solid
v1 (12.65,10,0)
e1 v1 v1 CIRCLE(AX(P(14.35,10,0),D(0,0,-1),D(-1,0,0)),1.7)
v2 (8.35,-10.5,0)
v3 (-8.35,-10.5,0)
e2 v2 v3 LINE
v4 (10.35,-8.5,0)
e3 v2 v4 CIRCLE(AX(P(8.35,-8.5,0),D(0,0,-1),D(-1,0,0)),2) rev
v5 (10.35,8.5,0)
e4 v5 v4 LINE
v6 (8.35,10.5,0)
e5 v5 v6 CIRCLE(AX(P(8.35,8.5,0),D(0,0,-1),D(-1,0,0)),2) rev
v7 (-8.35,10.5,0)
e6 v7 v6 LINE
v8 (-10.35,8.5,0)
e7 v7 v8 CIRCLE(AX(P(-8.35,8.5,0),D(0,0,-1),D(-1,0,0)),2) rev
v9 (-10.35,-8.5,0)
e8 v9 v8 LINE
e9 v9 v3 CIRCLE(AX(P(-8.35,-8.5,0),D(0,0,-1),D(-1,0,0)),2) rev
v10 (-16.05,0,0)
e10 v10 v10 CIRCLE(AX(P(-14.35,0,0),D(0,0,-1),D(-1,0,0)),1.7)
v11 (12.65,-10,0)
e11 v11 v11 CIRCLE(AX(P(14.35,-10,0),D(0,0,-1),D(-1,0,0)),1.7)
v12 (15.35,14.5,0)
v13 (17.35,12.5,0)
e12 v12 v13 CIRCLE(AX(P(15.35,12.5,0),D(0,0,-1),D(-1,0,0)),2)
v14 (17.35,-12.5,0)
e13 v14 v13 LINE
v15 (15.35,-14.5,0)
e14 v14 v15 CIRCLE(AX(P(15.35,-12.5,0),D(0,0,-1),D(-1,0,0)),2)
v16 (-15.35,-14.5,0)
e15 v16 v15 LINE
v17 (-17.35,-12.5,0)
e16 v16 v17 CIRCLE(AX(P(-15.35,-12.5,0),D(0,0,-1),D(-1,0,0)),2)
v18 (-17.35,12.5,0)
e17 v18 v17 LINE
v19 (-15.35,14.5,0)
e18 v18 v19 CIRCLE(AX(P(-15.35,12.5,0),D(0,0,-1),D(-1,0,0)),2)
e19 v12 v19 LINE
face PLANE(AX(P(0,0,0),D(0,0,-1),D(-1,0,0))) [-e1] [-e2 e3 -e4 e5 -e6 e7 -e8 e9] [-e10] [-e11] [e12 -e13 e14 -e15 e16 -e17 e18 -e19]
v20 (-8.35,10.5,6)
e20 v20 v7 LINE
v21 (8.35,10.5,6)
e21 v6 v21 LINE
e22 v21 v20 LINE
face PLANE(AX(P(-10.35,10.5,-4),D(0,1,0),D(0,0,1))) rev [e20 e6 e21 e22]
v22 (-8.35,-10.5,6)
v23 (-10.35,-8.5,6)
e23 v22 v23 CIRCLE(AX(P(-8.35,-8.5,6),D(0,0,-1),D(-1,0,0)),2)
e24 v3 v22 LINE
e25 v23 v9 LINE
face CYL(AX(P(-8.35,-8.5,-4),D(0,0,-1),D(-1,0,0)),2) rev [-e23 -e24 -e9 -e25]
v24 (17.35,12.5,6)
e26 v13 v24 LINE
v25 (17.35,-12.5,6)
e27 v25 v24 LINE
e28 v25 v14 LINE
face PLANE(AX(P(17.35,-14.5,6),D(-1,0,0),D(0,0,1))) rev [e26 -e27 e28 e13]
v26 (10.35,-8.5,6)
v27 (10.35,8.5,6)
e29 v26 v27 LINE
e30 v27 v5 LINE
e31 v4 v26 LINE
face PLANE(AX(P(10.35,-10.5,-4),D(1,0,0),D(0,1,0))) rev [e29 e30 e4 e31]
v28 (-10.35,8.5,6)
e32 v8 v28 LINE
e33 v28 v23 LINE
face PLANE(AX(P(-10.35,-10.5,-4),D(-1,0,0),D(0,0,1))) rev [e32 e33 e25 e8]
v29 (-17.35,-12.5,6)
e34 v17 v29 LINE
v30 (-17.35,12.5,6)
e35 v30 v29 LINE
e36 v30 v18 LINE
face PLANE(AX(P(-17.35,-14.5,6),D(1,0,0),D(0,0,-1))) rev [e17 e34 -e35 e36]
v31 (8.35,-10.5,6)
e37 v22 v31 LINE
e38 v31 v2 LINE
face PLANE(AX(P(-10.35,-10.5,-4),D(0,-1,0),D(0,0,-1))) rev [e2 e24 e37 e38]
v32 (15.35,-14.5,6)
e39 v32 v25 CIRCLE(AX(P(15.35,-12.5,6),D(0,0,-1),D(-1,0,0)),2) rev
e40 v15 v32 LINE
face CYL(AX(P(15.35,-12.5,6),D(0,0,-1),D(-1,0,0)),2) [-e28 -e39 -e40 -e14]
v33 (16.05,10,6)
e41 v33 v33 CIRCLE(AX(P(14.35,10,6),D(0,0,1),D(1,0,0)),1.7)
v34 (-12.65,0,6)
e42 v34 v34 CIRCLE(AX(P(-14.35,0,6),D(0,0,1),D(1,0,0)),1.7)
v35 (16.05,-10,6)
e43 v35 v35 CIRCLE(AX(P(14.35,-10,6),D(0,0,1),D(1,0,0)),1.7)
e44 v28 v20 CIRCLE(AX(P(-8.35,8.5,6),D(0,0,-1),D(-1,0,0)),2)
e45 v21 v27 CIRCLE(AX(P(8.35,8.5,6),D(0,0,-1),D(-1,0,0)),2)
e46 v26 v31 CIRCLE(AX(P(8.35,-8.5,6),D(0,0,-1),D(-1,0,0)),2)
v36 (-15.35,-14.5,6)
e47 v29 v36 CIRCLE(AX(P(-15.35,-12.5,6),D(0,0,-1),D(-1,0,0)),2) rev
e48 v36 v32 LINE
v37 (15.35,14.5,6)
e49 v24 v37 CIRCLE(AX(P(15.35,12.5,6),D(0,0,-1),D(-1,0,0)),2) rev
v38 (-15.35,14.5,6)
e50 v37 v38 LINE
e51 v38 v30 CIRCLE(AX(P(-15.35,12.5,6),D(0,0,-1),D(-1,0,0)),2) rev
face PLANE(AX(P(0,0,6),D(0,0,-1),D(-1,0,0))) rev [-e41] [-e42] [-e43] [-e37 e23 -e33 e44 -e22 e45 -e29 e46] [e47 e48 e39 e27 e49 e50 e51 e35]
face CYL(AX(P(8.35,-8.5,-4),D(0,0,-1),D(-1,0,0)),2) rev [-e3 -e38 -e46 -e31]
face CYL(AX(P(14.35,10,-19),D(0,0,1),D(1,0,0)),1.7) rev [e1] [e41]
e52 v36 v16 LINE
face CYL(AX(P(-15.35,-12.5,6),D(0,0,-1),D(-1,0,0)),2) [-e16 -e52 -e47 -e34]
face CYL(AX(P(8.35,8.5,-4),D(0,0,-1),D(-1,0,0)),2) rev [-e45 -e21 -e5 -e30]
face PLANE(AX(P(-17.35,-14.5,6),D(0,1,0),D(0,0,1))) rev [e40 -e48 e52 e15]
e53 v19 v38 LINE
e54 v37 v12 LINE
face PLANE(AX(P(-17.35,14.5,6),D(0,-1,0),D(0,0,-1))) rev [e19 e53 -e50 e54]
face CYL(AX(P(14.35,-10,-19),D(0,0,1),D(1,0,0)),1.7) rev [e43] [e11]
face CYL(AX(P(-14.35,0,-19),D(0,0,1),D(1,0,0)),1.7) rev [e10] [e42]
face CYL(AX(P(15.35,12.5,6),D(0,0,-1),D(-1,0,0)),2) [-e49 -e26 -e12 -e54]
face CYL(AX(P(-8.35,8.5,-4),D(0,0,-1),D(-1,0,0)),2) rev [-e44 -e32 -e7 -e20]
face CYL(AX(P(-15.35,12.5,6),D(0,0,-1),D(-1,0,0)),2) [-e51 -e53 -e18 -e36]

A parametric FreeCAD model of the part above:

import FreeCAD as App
import Part
import Sketcher
from FreeCAD import Vector


def edges_at(feature, points):
    """Names of the edges that pass closest to the given points."""
    edges = feature.Shape.Edges
    near = lambda p: min(range(len(edges)), key=lambda i: edges[i].distToShape(Part.Vertex(*p))[0])
    return sorted({f"Edge{near(p) + 1}" for p in points})

doc = App.newDocument("Part")
body = doc.addObject("PartDesign::Body", "Body")

# Sketch on XY plane
sketch1 = doc.addObject("Sketcher::SketchObject", "Sketch")
body.addObject(sketch1)
sketch1.AttachmentSupport = (doc.XY_Plane, [""])
sketch1.MapMode = "FlatFace"
sketch1.addGeometry([
    Part.LineSegment(Vector(-17.35, 14.5, 0), Vector(-17.35, -14.5, 0)),
    Part.LineSegment(Vector(-17.35, -14.5, 0), Vector(17.35, -14.5, 0)),
    Part.LineSegment(Vector(17.35, -14.5, 0), Vector(17.35, 14.5, 0)),
    Part.LineSegment(Vector(17.35, 14.5, 0), Vector(-17.35, 14.5, 0)),
], False)
sketch1.addConstraint([
    Sketcher.Constraint("Coincident", 0, 2, 1, 1),
    Sketcher.Constraint("Coincident", 1, 2, 2, 1),
    Sketcher.Constraint("Coincident", 2, 2, 3, 1),
    Sketcher.Constraint("Coincident", 3, 2, 0, 1),
    Sketcher.Constraint("Vertical", 0),
    Sketcher.Constraint("Horizontal", 1),
    Sketcher.Constraint("Vertical", 2),
    Sketcher.Constraint("Horizontal", 3),
    Sketcher.Constraint("Symmetric", 0, 2, 2, 2, -1, 1),
    Sketcher.Constraint("DistanceY", 0, 2, 0, 1, 29.0),
    Sketcher.Constraint("DistanceX", 1, 1, 1, 2, 34.7),
])
pad1 = doc.addObject("PartDesign::Pad", "Pad")
body.addObject(pad1)
pad1.Profile = sketch1
pad1.Length = 6

# Sketch on XY plane
sketch2 = doc.addObject("Sketcher::SketchObject", "Sketch001")
body.addObject(sketch2)
sketch2.AttachmentSupport = (doc.XY_Plane, [""])
sketch2.MapMode = "FlatFace"
sketch2.AttachmentOffset = App.Placement(Vector(0, 0, 6), App.Rotation())
sketch2.addGeometry([
    Part.Circle(Vector(14.35, -10, 0), Vector(0, 0, 1), 1.7),
    Part.Circle(Vector(-14.35, 0, 0), Vector(0, 0, 1), 1.7),
    Part.Circle(Vector(14.35, 10, 0), Vector(0, 0, 1), 1.7),
], False)
sketch2.addConstraint([
    Sketcher.Constraint("Equal", 0, 1),
    Sketcher.Constraint("Equal", 1, 2),
    Sketcher.Constraint("Symmetric", 0, 3, 2, 3, -1),
    Sketcher.Constraint("PointOnObject", 1, 3, -1),
    Sketcher.Constraint("Diameter", 0, 3.4),
    Sketcher.Constraint("DistanceY", 0, 3, -1, 1, 10.0),
    Sketcher.Constraint("DistanceX", 1, 3, 0, 3, 28.7),
    Sketcher.Constraint("DistanceX", -1, 1, 0, 3, 14.35),
])
pocket1 = doc.addObject("PartDesign::Pocket", "Pocket")
body.addObject(pocket1)
pocket1.Profile = sketch2
pocket1.Length = 25

# Sketch on XY plane
sketch3 = doc.addObject("Sketcher::SketchObject", "Sketch002")
body.addObject(sketch3)
sketch3.AttachmentSupport = (doc.XY_Plane, [""])
sketch3.MapMode = "FlatFace"
sketch3.AttachmentOffset = App.Placement(Vector(0, 0, 6), App.Rotation())
sketch3.addGeometry([
    Part.LineSegment(Vector(-10.35, 10.5, 0), Vector(-10.35, -10.5, 0)),
    Part.LineSegment(Vector(-10.35, -10.5, 0), Vector(10.35, -10.5, 0)),
    Part.LineSegment(Vector(10.35, -10.5, 0), Vector(10.35, 10.5, 0)),
    Part.LineSegment(Vector(10.35, 10.5, 0), Vector(-10.35, 10.5, 0)),
], False)
sketch3.addConstraint([
    Sketcher.Constraint("Coincident", 0, 2, 1, 1),
    Sketcher.Constraint("Coincident", 1, 2, 2, 1),
    Sketcher.Constraint("Coincident", 2, 2, 3, 1),
    Sketcher.Constraint("Coincident", 3, 2, 0, 1),
    Sketcher.Constraint("Vertical", 0),
    Sketcher.Constraint("Horizontal", 1),
    Sketcher.Constraint("Vertical", 2),
    Sketcher.Constraint("Horizontal", 3),
    Sketcher.Constraint("Symmetric", 0, 2, 2, 2, -1, 1),
    Sketcher.Constraint("DistanceY", 0, 2, 0, 1, 21.0),
    Sketcher.Constraint("DistanceX", 1, 1, 1, 2, 20.7),
])
pocket2 = doc.addObject("PartDesign::Pocket", "Pocket001")
body.addObject(pocket2)
pocket2.Profile = sketch3
pocket2.Length = 10
doc.recompute()

fillet = doc.addObject("PartDesign::Fillet", "Fillet")
body.addObject(fillet)
fillet.Base = (pocket2, edges_at(pocket2, [
    (10.35, 10.5, 3),
    (10.35, -10.5, 3),
    (-10.35, -10.5, 3),
    (-10.35, 10.5, 3),
]))
fillet.Radius = 2
doc.recompute()

fillet2 = doc.addObject("PartDesign::Fillet", "Fillet001")
body.addObject(fillet2)
fillet2.Base = (fillet, edges_at(fillet, [
    (17.35, -14.5, 3),
    (-17.35, -14.5, 3),
    (-17.35, 14.5, 3),
    (17.35, 14.5, 3),
]))
fillet2.Radius = 2

doc.recompute()
